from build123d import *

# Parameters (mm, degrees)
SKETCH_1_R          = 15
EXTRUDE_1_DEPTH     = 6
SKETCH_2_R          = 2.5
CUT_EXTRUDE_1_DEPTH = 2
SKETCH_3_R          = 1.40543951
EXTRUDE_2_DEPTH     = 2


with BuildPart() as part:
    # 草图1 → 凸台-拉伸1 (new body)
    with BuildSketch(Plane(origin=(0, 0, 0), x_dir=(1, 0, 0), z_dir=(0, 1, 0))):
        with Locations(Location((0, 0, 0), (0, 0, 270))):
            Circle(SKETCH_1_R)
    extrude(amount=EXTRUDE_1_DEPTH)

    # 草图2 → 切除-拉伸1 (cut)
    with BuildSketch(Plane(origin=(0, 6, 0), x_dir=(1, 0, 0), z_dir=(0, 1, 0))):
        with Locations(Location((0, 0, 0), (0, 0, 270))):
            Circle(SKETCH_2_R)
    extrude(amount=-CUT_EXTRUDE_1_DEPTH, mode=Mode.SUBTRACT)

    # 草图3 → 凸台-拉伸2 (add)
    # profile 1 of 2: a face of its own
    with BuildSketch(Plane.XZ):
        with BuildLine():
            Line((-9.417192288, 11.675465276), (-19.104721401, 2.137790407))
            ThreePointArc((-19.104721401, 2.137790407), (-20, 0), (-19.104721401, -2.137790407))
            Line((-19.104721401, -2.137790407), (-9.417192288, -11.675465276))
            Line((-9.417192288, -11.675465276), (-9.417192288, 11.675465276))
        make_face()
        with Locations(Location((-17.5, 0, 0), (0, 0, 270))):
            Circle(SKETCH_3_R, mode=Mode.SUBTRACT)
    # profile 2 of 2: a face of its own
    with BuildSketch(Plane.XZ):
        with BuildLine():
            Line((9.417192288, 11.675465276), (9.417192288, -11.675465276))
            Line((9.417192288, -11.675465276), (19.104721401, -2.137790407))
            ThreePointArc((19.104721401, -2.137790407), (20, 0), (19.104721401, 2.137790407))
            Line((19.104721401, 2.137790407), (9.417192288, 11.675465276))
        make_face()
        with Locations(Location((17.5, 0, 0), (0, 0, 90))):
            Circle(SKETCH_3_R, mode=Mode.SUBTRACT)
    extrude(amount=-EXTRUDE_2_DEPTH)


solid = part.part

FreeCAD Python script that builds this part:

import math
import FreeCAD as App
import Part
import Sketcher

doc = App.newDocument("Part")
body = doc.addObject("PartDesign::Body", "Body")

# Sketch on XZ plane
sketch1 = doc.addObject("Sketcher::SketchObject", "Sketch")
body.addObject(sketch1)
sketch1.AttachmentSupport = (doc.XZ_Plane, [""])
sketch1.MapMode = "FlatFace"
sketch1.addGeometry(Part.Circle(App.Vector(0, 0, 0), App.Vector(0, 0, 1), 15), False)
sketch1.addConstraint([
    Sketcher.Constraint("Coincident", 0, 3, -1, 1),
    Sketcher.Constraint("Diameter", 0, 30.0),
])
pad1 = doc.addObject("PartDesign::Pad", "Pad")
body.addObject(pad1)
pad1.Profile = sketch1
pad1.Length = 6
pad1.Reversed = True

# Sketch on XZ plane
sketch2 = doc.addObject("Sketcher::SketchObject", "Sketch001")
body.addObject(sketch2)
sketch2.AttachmentSupport = (doc.XZ_Plane, [""])
sketch2.MapMode = "FlatFace"
sketch2.AttachmentOffset = App.Placement(App.Vector(0, 0, -6), App.Rotation())
sketch2.addGeometry(Part.Circle(App.Vector(0, 0, 0), App.Vector(0, 0, 1), 2.5), False)
sketch2.addConstraint([
    Sketcher.Constraint("Coincident", 0, 3, -1, 1),
    Sketcher.Constraint("Diameter", 0, 5.0),
])
pocket1 = doc.addObject("PartDesign::Pocket", "Pocket")
body.addObject(pocket1)
pocket1.Profile = sketch2
pocket1.Length = 2
pocket1.Reversed = True

# Sketch on XZ plane
sketch3 = doc.addObject("Sketcher::SketchObject", "Sketch002")
body.addObject(sketch3)
sketch3.AttachmentSupport = (doc.XZ_Plane, [""])
sketch3.MapMode = "FlatFace"
sketch3.addGeometry([
    Part.LineSegment(App.Vector(-9.4, 11.7, 0), App.Vector(-19.1, 2.1, 0)),  # 0
    Part.ArcOfCircle(Part.Circle(App.Vector(-17, 0, 0), App.Vector(0, 0, 1), 3), math.radians(135), math.radians(225)),  # 1
    Part.LineSegment(App.Vector(-19.1, -2.1, 0), App.Vector(-9.4, -11.7, 0)),  # 2
    Part.LineSegment(App.Vector(-9.4, -11.7, 0), App.Vector(-9.4, 11.7, 0)),  # 3
    Part.Circle(App.Vector(-17.5, 0, 0), App.Vector(0, 0, 1), 1.4),  # 4
    Part.LineSegment(App.Vector(9.4, 11.7, 0), App.Vector(9.4, -11.7, 0)),  # 5
    Part.LineSegment(App.Vector(9.4, -11.7, 0), App.Vector(19.1, -2.1, 0)),  # 6
    Part.ArcOfCircle(Part.Circle(App.Vector(17, 0, 0), App.Vector(0, 0, 1), 3), math.radians(-45), math.radians(45)),  # 7
    Part.LineSegment(App.Vector(19.1, 2.1, 0), App.Vector(9.4, 11.7, 0)),  # 8
    Part.Circle(App.Vector(17.5, 0, 0), App.Vector(0, 0, 1), 1.4),  # 9
], False)
sketch3.addConstraint([
    Sketcher.Constraint("Tangent", 0, 2, 1, 1),
    Sketcher.Constraint("Tangent", 1, 2, 2, 1),
    Sketcher.Constraint("Coincident", 2, 2, 3, 1),
    Sketcher.Constraint("Coincident", 3, 2, 0, 1),
    Sketcher.Constraint("Coincident", 5, 2, 6, 1),
    Sketcher.Constraint("Tangent", 6, 2, 7, 1),
    Sketcher.Constraint("Tangent", 7, 2, 8, 1),
    Sketcher.Constraint("Coincident", 8, 2, 5, 1),
    Sketcher.Constraint("Vertical", 3),
    Sketcher.Constraint("Vertical", 5),
    Sketcher.Constraint("Equal", 1, 7),
    Sketcher.Constraint("Equal", 4, 9),
    Sketcher.Constraint("Symmetric", 1, 3, 7, 3, -1, 1),
    Sketcher.Constraint("Symmetric", 4, 3, 9, 3, -1, 1),
    Sketcher.Constraint("Symmetric", 3, 2, 5, 2, -1, 1),
    Sketcher.Constraint("Symmetric", 1, 2, 6, 2, -2),
    Sketcher.Constraint("PointOnObject", 4, 3, -1),
    Sketcher.Constraint("Parallel", 2, 8),
    Sketcher.Constraint("Radius", 1, 3.0),
    Sketcher.Constraint("DistanceX", 1, 3, -1, 1, 17.0),
    Sketcher.Constraint("DistanceX", 4, 3, 9, 3, 35.0),
    Sketcher.Constraint("Diameter", 4, 2.810879),
    Sketcher.Constraint("DistanceY", 3, 1, 3, 2, 23.350931),
    Sketcher.Constraint("DistanceX", 0, 2, -1, 1, 19.104721),
])
pad2 = doc.addObject("PartDesign::Pad", "Pad001")
body.addObject(pad2)
pad2.Profile = sketch3
pad2.Length = 2
pad2.Reversed = True

doc.recompute()
